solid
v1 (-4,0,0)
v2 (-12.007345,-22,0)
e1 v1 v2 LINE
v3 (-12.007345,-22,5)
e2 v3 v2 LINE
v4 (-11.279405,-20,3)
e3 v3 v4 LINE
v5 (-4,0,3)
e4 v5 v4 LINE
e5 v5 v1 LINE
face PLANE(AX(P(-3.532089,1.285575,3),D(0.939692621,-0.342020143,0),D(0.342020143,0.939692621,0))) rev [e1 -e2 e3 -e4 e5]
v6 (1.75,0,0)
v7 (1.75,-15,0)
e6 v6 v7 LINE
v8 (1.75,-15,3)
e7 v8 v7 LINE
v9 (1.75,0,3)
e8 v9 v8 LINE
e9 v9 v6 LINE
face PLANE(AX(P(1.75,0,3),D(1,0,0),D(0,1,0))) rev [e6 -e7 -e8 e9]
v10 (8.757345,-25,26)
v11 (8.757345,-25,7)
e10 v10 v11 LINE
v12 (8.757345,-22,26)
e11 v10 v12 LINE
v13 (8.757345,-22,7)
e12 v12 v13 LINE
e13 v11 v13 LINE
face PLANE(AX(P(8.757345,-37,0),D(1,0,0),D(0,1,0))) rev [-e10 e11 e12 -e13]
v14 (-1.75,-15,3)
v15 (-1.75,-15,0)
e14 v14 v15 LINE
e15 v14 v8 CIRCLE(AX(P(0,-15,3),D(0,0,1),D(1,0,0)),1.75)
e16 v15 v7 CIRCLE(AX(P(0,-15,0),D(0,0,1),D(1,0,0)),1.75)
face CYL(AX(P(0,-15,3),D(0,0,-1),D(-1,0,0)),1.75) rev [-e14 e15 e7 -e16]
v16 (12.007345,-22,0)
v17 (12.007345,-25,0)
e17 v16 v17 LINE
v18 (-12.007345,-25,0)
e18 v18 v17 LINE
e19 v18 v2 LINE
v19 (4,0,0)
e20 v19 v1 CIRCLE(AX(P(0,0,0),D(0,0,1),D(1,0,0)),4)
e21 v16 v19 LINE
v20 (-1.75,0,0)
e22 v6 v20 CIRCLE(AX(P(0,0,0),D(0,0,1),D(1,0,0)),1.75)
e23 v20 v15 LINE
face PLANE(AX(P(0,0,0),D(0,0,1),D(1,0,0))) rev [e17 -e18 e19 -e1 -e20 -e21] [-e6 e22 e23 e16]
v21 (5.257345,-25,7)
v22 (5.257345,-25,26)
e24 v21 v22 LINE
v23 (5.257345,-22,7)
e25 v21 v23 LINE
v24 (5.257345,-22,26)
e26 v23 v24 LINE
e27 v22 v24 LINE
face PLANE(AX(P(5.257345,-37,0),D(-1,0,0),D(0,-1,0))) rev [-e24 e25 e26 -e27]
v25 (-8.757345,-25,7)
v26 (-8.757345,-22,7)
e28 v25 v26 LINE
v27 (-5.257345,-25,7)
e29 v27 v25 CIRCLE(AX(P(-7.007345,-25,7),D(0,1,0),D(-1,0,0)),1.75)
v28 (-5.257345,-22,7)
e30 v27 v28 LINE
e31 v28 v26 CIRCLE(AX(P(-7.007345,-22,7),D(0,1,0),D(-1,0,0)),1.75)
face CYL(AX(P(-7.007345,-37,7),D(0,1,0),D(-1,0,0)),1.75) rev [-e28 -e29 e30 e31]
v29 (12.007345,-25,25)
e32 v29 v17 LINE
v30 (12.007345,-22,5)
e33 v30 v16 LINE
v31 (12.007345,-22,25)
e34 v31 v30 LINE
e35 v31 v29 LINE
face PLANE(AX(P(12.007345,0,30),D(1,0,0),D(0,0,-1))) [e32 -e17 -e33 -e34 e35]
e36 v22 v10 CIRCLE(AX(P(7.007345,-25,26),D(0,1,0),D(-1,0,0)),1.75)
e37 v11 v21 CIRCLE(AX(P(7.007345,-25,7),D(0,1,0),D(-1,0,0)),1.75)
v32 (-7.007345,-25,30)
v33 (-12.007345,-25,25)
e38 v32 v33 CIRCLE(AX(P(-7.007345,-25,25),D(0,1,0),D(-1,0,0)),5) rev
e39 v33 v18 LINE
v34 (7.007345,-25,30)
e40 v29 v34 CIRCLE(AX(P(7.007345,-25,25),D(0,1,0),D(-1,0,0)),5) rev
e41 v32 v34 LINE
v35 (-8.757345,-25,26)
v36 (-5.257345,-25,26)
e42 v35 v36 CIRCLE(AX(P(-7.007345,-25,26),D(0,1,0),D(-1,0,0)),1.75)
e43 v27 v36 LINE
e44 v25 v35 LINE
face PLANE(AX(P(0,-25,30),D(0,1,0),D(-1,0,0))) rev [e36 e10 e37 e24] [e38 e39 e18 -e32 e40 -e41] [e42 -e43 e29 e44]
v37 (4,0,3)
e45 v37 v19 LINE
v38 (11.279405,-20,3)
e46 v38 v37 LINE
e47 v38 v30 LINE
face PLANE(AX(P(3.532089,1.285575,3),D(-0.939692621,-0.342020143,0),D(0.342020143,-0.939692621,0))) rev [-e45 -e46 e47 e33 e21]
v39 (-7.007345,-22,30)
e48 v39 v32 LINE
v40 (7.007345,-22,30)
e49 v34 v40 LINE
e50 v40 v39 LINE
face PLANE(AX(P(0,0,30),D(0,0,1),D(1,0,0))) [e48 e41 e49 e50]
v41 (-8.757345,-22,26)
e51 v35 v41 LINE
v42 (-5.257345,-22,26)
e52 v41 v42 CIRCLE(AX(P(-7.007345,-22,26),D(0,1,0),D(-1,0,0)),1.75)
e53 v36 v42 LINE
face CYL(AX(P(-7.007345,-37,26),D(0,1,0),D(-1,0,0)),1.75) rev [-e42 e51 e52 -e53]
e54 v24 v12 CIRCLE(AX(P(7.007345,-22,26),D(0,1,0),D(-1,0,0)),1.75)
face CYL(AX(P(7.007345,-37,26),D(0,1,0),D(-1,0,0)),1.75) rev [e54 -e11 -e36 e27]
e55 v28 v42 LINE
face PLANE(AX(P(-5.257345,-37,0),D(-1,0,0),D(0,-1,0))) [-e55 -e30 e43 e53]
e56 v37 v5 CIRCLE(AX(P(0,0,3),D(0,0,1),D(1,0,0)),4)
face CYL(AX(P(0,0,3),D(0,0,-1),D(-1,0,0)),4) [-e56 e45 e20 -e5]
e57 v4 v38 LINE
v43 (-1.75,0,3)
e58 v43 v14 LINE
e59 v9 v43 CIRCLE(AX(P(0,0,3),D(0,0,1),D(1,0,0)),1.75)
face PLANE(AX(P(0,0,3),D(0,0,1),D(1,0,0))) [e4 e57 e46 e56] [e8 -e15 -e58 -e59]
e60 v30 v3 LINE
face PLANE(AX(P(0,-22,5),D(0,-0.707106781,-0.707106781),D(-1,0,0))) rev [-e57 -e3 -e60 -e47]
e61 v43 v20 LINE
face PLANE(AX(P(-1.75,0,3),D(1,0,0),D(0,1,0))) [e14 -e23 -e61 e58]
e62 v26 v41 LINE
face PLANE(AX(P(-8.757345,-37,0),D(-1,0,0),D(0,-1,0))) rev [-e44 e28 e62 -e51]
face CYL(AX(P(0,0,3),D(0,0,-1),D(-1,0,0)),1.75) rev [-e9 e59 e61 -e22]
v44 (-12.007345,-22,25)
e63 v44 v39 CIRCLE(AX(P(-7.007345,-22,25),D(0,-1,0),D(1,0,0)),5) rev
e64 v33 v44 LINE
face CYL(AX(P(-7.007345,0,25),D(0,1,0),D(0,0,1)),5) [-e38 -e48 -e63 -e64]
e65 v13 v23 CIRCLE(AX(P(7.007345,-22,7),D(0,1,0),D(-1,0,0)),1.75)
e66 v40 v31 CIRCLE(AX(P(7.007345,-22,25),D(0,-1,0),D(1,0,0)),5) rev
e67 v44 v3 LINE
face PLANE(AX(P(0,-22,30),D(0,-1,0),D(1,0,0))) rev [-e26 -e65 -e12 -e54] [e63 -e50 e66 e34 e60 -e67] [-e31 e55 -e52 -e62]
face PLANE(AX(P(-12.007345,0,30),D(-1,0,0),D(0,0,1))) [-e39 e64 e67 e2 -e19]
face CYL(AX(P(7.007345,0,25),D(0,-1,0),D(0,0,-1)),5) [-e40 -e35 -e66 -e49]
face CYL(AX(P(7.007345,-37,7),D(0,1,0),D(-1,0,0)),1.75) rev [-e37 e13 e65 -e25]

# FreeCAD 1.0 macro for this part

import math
import FreeCAD as App
import Part
import Sketcher
Q = App.Units.Quantity


def edges_at(feature, points):
    """Names of the edges that pass closest to the given points."""
    edges = feature.Shape.Edges
    near = lambda p: min(range(len(edges)), key=lambda i: edges[i].distToShape(Part.Vertex(*p))[0])
    return sorted({f"Edge{near(p) + 1}" for p in points})

doc = App.newDocument("Part")
body = doc.addObject("PartDesign::Body", "Body")

# Sketch on XY plane
sketch1 = body.newObject("Sketcher::SketchObject", "Sketch")
sketch1.AttachmentSupport = (doc.getObject("XY_Plane"), [""])
sketch1.MapMode = "FlatFace"
sketch1.addGeometry([
    Part.ArcOfCircle(Part.Circle(App.Vector(0, 0, 0), App.Vector(0, 0, 1), 4), math.radians(0), math.radians(180)),  # 0
    Part.LineSegment(App.Vector(-4, 0, 0), App.Vector(-12, -22, 0)),  # 1
    Part.LineSegment(App.Vector(-12, -22, 0), App.Vector(12, -22, 0)),  # 2
    Part.LineSegment(App.Vector(12, -22, 0), App.Vector(4, 0, 0)),  # 3
    Part.ArcOfCircle(Part.Circle(App.Vector(0, -15, 0), App.Vector(0, 0, 1), 1.8), math.radians(180), math.radians(360)),  # 4
    Part.LineSegment(App.Vector(-1.8, -15, 0), App.Vector(-1.8, 0, 0)),  # 5
    Part.ArcOfCircle(Part.Circle(App.Vector(0, 0, 0), App.Vector(0, 0, 1), 1.8), math.radians(0), math.radians(180)),  # 6
    Part.LineSegment(App.Vector(1.8, 0, 0), App.Vector(1.8, -15, 0)),  # 7
], False)
sketch1.addConstraint([
    Sketcher.Constraint("Coincident", 0, 2, 1, 1),
    Sketcher.Constraint("Coincident", 1, 2, 2, 1),
    Sketcher.Constraint("Coincident", 2, 2, 3, 1),
    Sketcher.Constraint("Coincident", 3, 2, 0, 1),
    Sketcher.Constraint("Tangent", 4, 1, 5, 1),
    Sketcher.Constraint("Tangent", 5, 2, 6, 2),
    Sketcher.Constraint("Tangent", 6, 1, 7, 1),
    Sketcher.Constraint("Tangent", 7, 2, 4, 2),
    Sketcher.Constraint("Horizontal", 2),
    Sketcher.Constraint("Vertical", 5),
    Sketcher.Constraint("Vertical", 7),
    Sketcher.Constraint("Coincident", 0, 3, -1, 1),
    Sketcher.Constraint("Coincident", 6, 3, -1, 1),
    Sketcher.Constraint("PointOnObject", 0, 2, -1),
    Sketcher.Constraint("PointOnObject", 3, 2, -1),
    Sketcher.Constraint("Equal", 1, 3),
    Sketcher.Constraint("Radius", 0, 4.0),
    Sketcher.Constraint("DistanceY", 5, 1, 5, 2, 15.0),
    Sketcher.Constraint("Angle", 1, Q("-110 deg")),
    Sketcher.Constraint("Radius", 4, 1.75),
    Sketcher.Constraint("DistanceY", 1, 2, -1, 1, 22.0),
])
pad1 = body.newObject("PartDesign::Pad", "Pad")
pad1.Profile = sketch1
pad1.Length = 3

# Sketch on XY plane
sketch2 = body.newObject("Sketcher::SketchObject", "Sketch001")
sketch2.AttachmentSupport = (doc.getObject("XY_Plane"), [""])
sketch2.MapMode = "FlatFace"
sketch2.addGeometry([
    Part.LineSegment(App.Vector(-12, -22, 0), App.Vector(-12, -25, 0)),
    Part.LineSegment(App.Vector(-12, -25, 0), App.Vector(12, -25, 0)),
    Part.LineSegment(App.Vector(12, -25, 0), App.Vector(12, -22, 0)),
    Part.LineSegment(App.Vector(12, -22, 0), App.Vector(-12, -22, 0)),
], False)
sketch2.addConstraint([
    Sketcher.Constraint("Coincident", 0, 2, 1, 1),
    Sketcher.Constraint("Coincident", 1, 2, 2, 1),
    Sketcher.Constraint("Coincident", 2, 2, 3, 1),
    Sketcher.Constraint("Coincident", 3, 2, 0, 1),
    Sketcher.Constraint("Vertical", 0),
    Sketcher.Constraint("Horizontal", 1),
    Sketcher.Constraint("Vertical", 2),
    Sketcher.Constraint("Horizontal", 3),
    Sketcher.Constraint("DistanceY", 0, 2, 0, 1, 3.0),
    Sketcher.Constraint("DistanceY", 0, 2, -1, 1, 25.0),
    Sketcher.Constraint("DistanceX", 1, 1, 1, 2, 24.01469),
    Sketcher.Constraint("DistanceX", 0, 2, -1, 1, 12.007345),
])
pad2 = body.newObject("PartDesign::Pad", "Pad001")
pad2.Profile = sketch2
pad2.Length = 30

# Sketch on XZ plane
sketch3 = body.newObject("Sketcher::SketchObject", "Sketch002")
sketch3.AttachmentSupport = (doc.getObject("XZ_Plane"), [""])
sketch3.MapMode = "FlatFace"
sketch3.AttachmentOffset = App.Placement(App.Vector(0, 0, 22), App.Rotation())
sketch3.addGeometry([
    Part.ArcOfCircle(Part.Circle(App.Vector(-7, 7, 0), App.Vector(0, 0, 1), 1.8), math.radians(180), math.radians(360)),  # 0
    Part.LineSegment(App.Vector(-8.8, 7, 0), App.Vector(-8.8, 26, 0)),  # 1
    Part.ArcOfCircle(Part.Circle(App.Vector(-7, 26, 0), App.Vector(0, 0, 1), 1.8), math.radians(0), math.radians(180)),  # 2
    Part.LineSegment(App.Vector(-5.3, 26, 0), App.Vector(-5.3, 7, 0)),  # 3
    Part.ArcOfCircle(Part.Circle(App.Vector(7, 26, 0), App.Vector(0, 0, 1), 1.8), math.radians(0), math.radians(180)),  # 4
    Part.LineSegment(App.Vector(8.8, 26, 0), App.Vector(8.8, 7, 0)),  # 5
    Part.ArcOfCircle(Part.Circle(App.Vector(7, 7, 0), App.Vector(0, 0, 1), 1.8), math.radians(180), math.radians(360)),  # 6
    Part.LineSegment(App.Vector(5.3, 7, 0), App.Vector(5.3, 26, 0)),  # 7
], False)
sketch3.addConstraint([
    Sketcher.Constraint("Tangent", 0, 1, 1, 1),
    Sketcher.Constraint("Tangent", 1, 2, 2, 2),
    Sketcher.Constraint("Tangent", 2, 1, 3, 1),
    Sketcher.Constraint("Tangent", 3, 2, 0, 2),
    Sketcher.Constraint("Tangent", 4, 1, 5, 1),
    Sketcher.Constraint("Tangent", 5, 2, 6, 2),
    Sketcher.Constraint("Tangent", 6, 1, 7, 1),
    Sketcher.Constraint("Tangent", 7, 2, 4, 2),
    Sketcher.Constraint("Vertical", 1),
    Sketcher.Constraint("Vertical", 3),
    Sketcher.Constraint("Vertical", 5),
    Sketcher.Constraint("Vertical", 7),
    Sketcher.Constraint("Equal", 2, 4),
    Sketcher.Constraint("Symmetric", 2, 3, 4, 3, -2),
    Sketcher.Constraint("Horizontal", 0, 3, 6, 3),
    Sketcher.Constraint("DistanceY", 1, 1, 1, 2, 19.0),
    Sketcher.Constraint("Radius", 0, 1.75),
    Sketcher.Constraint("DistanceY", -1, 1, 0, 3, 7.0),
    Sketcher.Constraint("DistanceX", 2, 3, 4, 3, 14.01469),
])
pocket1 = body.newObject("PartDesign::Pocket", "Pocket")
pocket1.Profile = sketch3
pocket1.Length = 15
pocket1.Reversed = True
doc.recompute()

fillet = body.newObject("PartDesign::Fillet", "Fillet")
fillet.Base = (pocket1, edges_at(pocket1, [(12.007, -23.5, 30), (-12.007, -23.5, 30)]))
fillet.Radius = 5
doc.recompute()

chamfer = body.newObject("PartDesign::Chamfer", "Chamfer")
chamfer.Base = (fillet, edges_at(fillet, [(0, -22, 3)]))
chamfer.Size = 2

doc.recompute()
